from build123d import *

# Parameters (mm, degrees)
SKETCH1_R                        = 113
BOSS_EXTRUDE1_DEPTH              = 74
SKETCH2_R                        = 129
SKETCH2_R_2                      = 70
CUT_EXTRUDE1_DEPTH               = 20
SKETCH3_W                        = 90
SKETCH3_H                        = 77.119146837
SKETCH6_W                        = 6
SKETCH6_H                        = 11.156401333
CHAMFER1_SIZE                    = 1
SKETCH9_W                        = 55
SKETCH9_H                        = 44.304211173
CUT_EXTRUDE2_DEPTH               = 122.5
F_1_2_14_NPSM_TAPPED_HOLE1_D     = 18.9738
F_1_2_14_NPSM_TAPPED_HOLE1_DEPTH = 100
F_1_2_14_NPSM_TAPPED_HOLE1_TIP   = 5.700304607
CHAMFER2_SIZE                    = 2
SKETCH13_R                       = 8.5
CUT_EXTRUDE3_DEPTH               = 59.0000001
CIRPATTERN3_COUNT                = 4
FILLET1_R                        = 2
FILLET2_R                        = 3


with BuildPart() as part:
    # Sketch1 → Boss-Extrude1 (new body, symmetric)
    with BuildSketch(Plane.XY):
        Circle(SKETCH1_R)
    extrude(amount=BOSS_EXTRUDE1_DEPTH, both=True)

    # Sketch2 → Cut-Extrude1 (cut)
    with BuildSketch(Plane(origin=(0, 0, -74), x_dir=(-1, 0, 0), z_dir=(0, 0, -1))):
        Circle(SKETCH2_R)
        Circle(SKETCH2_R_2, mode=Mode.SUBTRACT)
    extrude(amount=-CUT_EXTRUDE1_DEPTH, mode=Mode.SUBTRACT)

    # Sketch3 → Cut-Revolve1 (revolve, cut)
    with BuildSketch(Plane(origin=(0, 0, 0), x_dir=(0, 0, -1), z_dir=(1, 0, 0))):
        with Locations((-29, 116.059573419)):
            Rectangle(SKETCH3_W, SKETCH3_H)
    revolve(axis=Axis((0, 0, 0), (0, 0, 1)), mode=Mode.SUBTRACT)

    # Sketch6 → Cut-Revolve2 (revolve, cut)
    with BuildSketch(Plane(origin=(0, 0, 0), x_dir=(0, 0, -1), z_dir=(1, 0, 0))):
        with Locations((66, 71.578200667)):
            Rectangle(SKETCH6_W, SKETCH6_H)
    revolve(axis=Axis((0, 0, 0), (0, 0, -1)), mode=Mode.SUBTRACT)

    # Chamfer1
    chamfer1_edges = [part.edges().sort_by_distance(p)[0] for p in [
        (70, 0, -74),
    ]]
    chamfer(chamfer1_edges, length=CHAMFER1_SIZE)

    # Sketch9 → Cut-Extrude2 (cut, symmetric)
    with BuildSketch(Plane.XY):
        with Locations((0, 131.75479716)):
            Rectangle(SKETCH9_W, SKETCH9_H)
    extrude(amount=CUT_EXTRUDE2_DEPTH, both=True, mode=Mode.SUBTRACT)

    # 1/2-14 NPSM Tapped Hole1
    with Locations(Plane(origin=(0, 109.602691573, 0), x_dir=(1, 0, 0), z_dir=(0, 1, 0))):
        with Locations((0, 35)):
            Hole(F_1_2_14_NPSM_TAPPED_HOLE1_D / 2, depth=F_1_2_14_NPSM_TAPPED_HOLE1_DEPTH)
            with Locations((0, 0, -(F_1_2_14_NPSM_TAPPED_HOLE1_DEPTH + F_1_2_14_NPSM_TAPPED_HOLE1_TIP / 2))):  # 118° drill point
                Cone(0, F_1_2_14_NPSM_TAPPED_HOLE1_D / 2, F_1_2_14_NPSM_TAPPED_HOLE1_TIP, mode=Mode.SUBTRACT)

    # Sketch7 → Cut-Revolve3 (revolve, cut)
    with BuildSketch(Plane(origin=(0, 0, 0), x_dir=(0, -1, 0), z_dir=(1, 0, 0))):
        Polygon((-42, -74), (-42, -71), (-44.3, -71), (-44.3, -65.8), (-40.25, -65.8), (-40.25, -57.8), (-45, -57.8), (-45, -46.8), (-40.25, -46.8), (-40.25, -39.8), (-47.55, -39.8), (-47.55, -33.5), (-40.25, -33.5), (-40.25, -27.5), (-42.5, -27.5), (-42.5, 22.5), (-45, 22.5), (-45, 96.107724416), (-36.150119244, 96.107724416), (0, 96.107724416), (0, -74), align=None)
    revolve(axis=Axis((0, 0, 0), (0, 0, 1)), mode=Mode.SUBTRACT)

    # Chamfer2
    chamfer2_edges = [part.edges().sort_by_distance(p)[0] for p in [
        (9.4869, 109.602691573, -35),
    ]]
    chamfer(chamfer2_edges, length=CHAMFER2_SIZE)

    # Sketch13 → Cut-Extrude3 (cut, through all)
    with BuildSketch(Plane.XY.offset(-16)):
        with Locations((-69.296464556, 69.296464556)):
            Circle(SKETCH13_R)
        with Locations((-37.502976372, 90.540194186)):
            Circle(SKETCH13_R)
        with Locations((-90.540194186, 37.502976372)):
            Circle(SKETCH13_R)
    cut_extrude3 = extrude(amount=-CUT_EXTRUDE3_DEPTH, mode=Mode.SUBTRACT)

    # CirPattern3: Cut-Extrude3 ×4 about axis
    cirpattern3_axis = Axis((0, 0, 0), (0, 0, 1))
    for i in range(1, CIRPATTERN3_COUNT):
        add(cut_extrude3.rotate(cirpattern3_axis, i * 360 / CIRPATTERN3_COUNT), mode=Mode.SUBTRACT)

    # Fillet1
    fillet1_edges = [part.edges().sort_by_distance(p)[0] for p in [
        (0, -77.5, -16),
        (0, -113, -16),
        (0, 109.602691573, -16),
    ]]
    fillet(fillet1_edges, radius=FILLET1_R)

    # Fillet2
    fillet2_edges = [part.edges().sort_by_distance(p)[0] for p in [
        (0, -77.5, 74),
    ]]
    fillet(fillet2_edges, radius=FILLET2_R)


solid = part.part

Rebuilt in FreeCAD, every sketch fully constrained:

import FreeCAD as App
import Part
import Sketcher


def edges_at(feature, points):
    """Names of the edges that pass closest to the given points."""
    edges = feature.Shape.Edges
    near = lambda p: min(range(len(edges)), key=lambda i: edges[i].distToShape(Part.Vertex(*p))[0])
    return sorted({f"Edge{near(p) + 1}" for p in points})

doc = App.newDocument("Part")
body = doc.addObject("PartDesign::Body", "Body")

# Sketch on XY plane
sketch1 = body.newObject("Sketcher::SketchObject", "Sketch")
sketch1.AttachmentSupport = (doc.getObject("XY_Plane"), [""])
sketch1.MapMode = "FlatFace"
sketch1.addGeometry(Part.Circle(App.Vector(0, 0, 0), App.Vector(0, 0, 1), 113), False)
sketch1.addConstraint([
    Sketcher.Constraint("Coincident", 0, 3, -1, 1),
    Sketcher.Constraint("Diameter", 0, 226.0),
])
pad1 = body.newObject("PartDesign::Pad", "Pad")
pad1.Profile = sketch1
pad1.Length = 148
pad1.Midplane = True

# Sketch on XY plane
sketch2 = body.newObject("Sketcher::SketchObject", "Sketch001")
sketch2.AttachmentSupport = (doc.getObject("XY_Plane"), [""])
sketch2.MapMode = "FlatFace"
sketch2.AttachmentOffset = App.Placement(App.Vector(0, 0, -74), App.Rotation())
sketch2.addGeometry([
    Part.Circle(App.Vector(0, 0, 0), App.Vector(0, 0, 1), 129),
    Part.Circle(App.Vector(0, 0, 0), App.Vector(0, 0, 1), 70),
], False)
sketch2.addConstraint([
    Sketcher.Constraint("Coincident", 0, 3, -1, 1),
    Sketcher.Constraint("Coincident", 1, 3, -1, 1),
    Sketcher.Constraint("Diameter", 0, 258.0),
    Sketcher.Constraint("Diameter", 1, 140.0),
])
pocket1 = body.newObject("PartDesign::Pocket", "Pocket")
pocket1.Profile = sketch2
pocket1.Length = 20
pocket1.Reversed = True

# Sketch on YZ plane
sketch3 = body.newObject("Sketcher::SketchObject", "Sketch002")
sketch3.AttachmentSupport = (doc.getObject("YZ_Plane"), [""])
sketch3.MapMode = "FlatFace"
sketch3.addGeometry([
    Part.LineSegment(App.Vector(154.619147, 74, 0), App.Vector(77.5, 74, 0)),
    Part.LineSegment(App.Vector(77.5, 74, 0), App.Vector(77.5, -16, 0)),
    Part.LineSegment(App.Vector(77.5, -16, 0), App.Vector(154.619147, -16, 0)),
    Part.LineSegment(App.Vector(154.619147, -16, 0), App.Vector(154.619147, 74, 0)),
], False)
sketch3.addConstraint([
    Sketcher.Constraint("Coincident", 0, 2, 1, 1),
    Sketcher.Constraint("Coincident", 1, 2, 2, 1),
    Sketcher.Constraint("Coincident", 2, 2, 3, 1),
    Sketcher.Constraint("Coincident", 3, 2, 0, 1),
    Sketcher.Constraint("Horizontal", 0),
    Sketcher.Constraint("Vertical", 1),
    Sketcher.Constraint("Horizontal", 2),
    Sketcher.Constraint("Vertical", 3),
    Sketcher.Constraint("DistanceY", 1, 2, 1, 1, 90.0),
    Sketcher.Constraint("DistanceY", -1, 1, 0, 2, 74.0),
    Sketcher.Constraint("DistanceX", -1, 1, 0, 2, 77.5),
    Sketcher.Constraint("DistanceX", 0, 2, 0, 1, 77.119147),
])
groove = body.newObject("PartDesign::Groove", "Groove")
groove.Profile = sketch3
groove.ReferenceAxis = (sketch3, ["V_Axis"])
groove.Angle = 360

# Sketch on YZ plane
sketch4 = body.newObject("Sketcher::SketchObject", "Sketch003")
sketch4.AttachmentSupport = (doc.getObject("YZ_Plane"), [""])
sketch4.MapMode = "FlatFace"
sketch4.addGeometry([
    Part.LineSegment(App.Vector(77.156401, -63, 0), App.Vector(66, -63, 0)),
    Part.LineSegment(App.Vector(66, -63, 0), App.Vector(66, -69, 0)),
    Part.LineSegment(App.Vector(66, -69, 0), App.Vector(77.156401, -69, 0)),
    Part.LineSegment(App.Vector(77.156401, -69, 0), App.Vector(77.156401, -63, 0)),
], False)
sketch4.addConstraint([
    Sketcher.Constraint("Coincident", 0, 2, 1, 1),
    Sketcher.Constraint("Coincident", 1, 2, 2, 1),
    Sketcher.Constraint("Coincident", 2, 2, 3, 1),
    Sketcher.Constraint("Coincident", 3, 2, 0, 1),
    Sketcher.Constraint("Horizontal", 0),
    Sketcher.Constraint("Vertical", 1),
    Sketcher.Constraint("Horizontal", 2),
    Sketcher.Constraint("Vertical", 3),
    Sketcher.Constraint("DistanceY", 1, 2, 1, 1, 6.0),
    Sketcher.Constraint("DistanceX", -1, 1, 0, 2, 66.0),
    Sketcher.Constraint("DistanceY", 0, 2, -1, 1, 63.0),
    Sketcher.Constraint("DistanceX", 0, 2, 0, 1, 11.156401),
])
groove2 = body.newObject("PartDesign::Groove", "Groove001")
groove2.Profile = sketch4
groove2.ReferenceAxis = (sketch4, ["V_Axis"])
groove2.Angle = 360
doc.recompute()

chamfer = body.newObject("PartDesign::Chamfer", "Chamfer")
chamfer.Base = (groove2, edges_at(groove2, [(70, 0, -74)]))
chamfer.Size = 1

# Sketch on XY plane
sketch5 = body.newObject("Sketcher::SketchObject", "Sketch004")
sketch5.AttachmentSupport = (doc.getObject("XY_Plane"), [""])
sketch5.MapMode = "FlatFace"
sketch5.addGeometry([
    Part.LineSegment(App.Vector(-27.5, 153.906903, 0), App.Vector(-27.5, 109.602692, 0)),
    Part.LineSegment(App.Vector(-27.5, 109.602692, 0), App.Vector(27.5, 109.602692, 0)),
    Part.LineSegment(App.Vector(27.5, 109.602692, 0), App.Vector(27.5, 153.906903, 0)),
    Part.LineSegment(App.Vector(27.5, 153.906903, 0), App.Vector(-27.5, 153.906903, 0)),
], False)
sketch5.addConstraint([
    Sketcher.Constraint("Coincident", 0, 2, 1, 1),
    Sketcher.Constraint("Coincident", 1, 2, 2, 1),
    Sketcher.Constraint("Coincident", 2, 2, 3, 1),
    Sketcher.Constraint("Coincident", 3, 2, 0, 1),
    Sketcher.Constraint("Vertical", 0),
    Sketcher.Constraint("Horizontal", 1),
    Sketcher.Constraint("Vertical", 2),
    Sketcher.Constraint("Horizontal", 3),
    Sketcher.Constraint("DistanceX", 1, 1, 1, 2, 55.0),
    Sketcher.Constraint("DistanceX", 0, 2, -1, 1, 27.5),
    Sketcher.Constraint("DistanceY", 0, 2, 0, 1, 44.304211),
    Sketcher.Constraint("DistanceY", -1, 1, 0, 2, 109.602692),
])
pocket2 = body.newObject("PartDesign::Pocket", "Pocket001")
pocket2.Profile = sketch5
pocket2.Length = 245
pocket2.Midplane = True

# Sketch on XZ plane
sketch6 = body.newObject("Sketcher::SketchObject", "Sketch005")
sketch6.AttachmentSupport = (doc.getObject("XZ_Plane"), [""])
sketch6.MapMode = "FlatFace"
sketch6.AttachmentOffset = App.Placement(App.Vector(0, 0, -109.602692), App.Rotation())
sketch6.addGeometry(Part.Circle(App.Vector(0, -35, 0), App.Vector(0, 0, 1), 9.4869), False)
sketch6.addConstraint([
    Sketcher.Constraint("PointOnObject", 0, 3, -2),
    Sketcher.Constraint("DistanceY", 0, 3, -1, 1, 35.0),
    Sketcher.Constraint("Diameter", 0, 18.9738),
])
doc.recompute()
hole = body.newObject("PartDesign::Hole", "Hole")
hole.Profile = sketch6
hole.ThreadType = "None"
hole.Diameter = 18.9738
hole.DepthType = "Dimension"
hole.Depth = 100
hole.DrillPoint = "Angled"
hole.DrillPointAngle = 118
hole.Reversed = True

# Sketch on YZ plane
sketch7 = body.newObject("Sketcher::SketchObject", "Sketch006")
sketch7.AttachmentSupport = (doc.getObject("YZ_Plane"), [""])
sketch7.MapMode = "FlatFace"
sketch7.addGeometry([
    Part.LineSegment(App.Vector(42, 71, 0), App.Vector(42, 74, 0)),  # 0
    Part.LineSegment(App.Vector(42, 74, 0), App.Vector(0, 74, 0)),  # 1
    Part.LineSegment(App.Vector(0, 74, 0), App.Vector(0, -96.107724, 0)),  # 2
    Part.LineSegment(App.Vector(0, -96.107724, 0), App.Vector(45, -96.107724, 0)),  # 3
    Part.LineSegment(App.Vector(45, -96.107724, 0), App.Vector(45, -22.5, 0)),  # 4
    Part.LineSegment(App.Vector(45, -22.5, 0), App.Vector(42.5, -22.5, 0)),  # 5
    Part.LineSegment(App.Vector(42.5, -22.5, 0), App.Vector(42.5, 27.5, 0)),  # 6
    Part.LineSegment(App.Vector(42.5, 27.5, 0), App.Vector(40.25, 27.5, 0)),  # 7
    Part.LineSegment(App.Vector(40.25, 27.5, 0), App.Vector(40.25, 33.5, 0)),  # 8
    Part.LineSegment(App.Vector(40.25, 33.5, 0), App.Vector(47.55, 33.5, 0)),  # 9
    Part.LineSegment(App.Vector(47.55, 33.5, 0), App.Vector(47.55, 39.8, 0)),  # 10
    Part.LineSegment(App.Vector(47.55, 39.8, 0), App.Vector(40.25, 39.8, 0)),  # 11
    Part.LineSegment(App.Vector(40.25, 39.8, 0), App.Vector(40.25, 46.8, 0)),  # 12
    Part.LineSegment(App.Vector(40.25, 46.8, 0), App.Vector(45, 46.8, 0)),  # 13
    Part.LineSegment(App.Vector(45, 46.8, 0), App.Vector(45, 57.8, 0)),  # 14
    Part.LineSegment(App.Vector(45, 57.8, 0), App.Vector(40.25, 57.8, 0)),  # 15
    Part.LineSegment(App.Vector(40.25, 57.8, 0), App.Vector(40.25, 65.8, 0)),  # 16
    Part.LineSegment(App.Vector(40.25, 65.8, 0), App.Vector(44.3, 65.8, 0)),  # 17
    Part.LineSegment(App.Vector(44.3, 65.8, 0), App.Vector(44.3, 71, 0)),  # 18
    Part.LineSegment(App.Vector(44.3, 71, 0), App.Vector(42, 71, 0)),  # 19
], False)
sketch7.addConstraint([
    Sketcher.Constraint("Coincident", 0, 2, 1, 1),
    Sketcher.Constraint("Coincident", 1, 2, 2, 1),
    Sketcher.Constraint("Coincident", 2, 2, 3, 1),
    Sketcher.Constraint("Coincident", 3, 2, 4, 1),
    Sketcher.Constraint("Coincident", 4, 2, 5, 1),
    Sketcher.Constraint("Coincident", 5, 2, 6, 1),
    Sketcher.Constraint("Coincident", 6, 2, 7, 1),
    Sketcher.Constraint("Coincident", 7, 2, 8, 1),
    Sketcher.Constraint("Coincident", 8, 2, 9, 1),
    Sketcher.Constraint("Coincident", 9, 2, 10, 1),
    Sketcher.Constraint("Coincident", 10, 2, 11, 1),
    Sketcher.Constraint("Coincident", 11, 2, 12, 1),
    Sketcher.Constraint("Coincident", 12, 2, 13, 1),
    Sketcher.Constraint("Coincident", 13, 2, 14, 1),
    Sketcher.Constraint("Coincident", 14, 2, 15, 1),
    Sketcher.Constraint("Coincident", 15, 2, 16, 1),
    Sketcher.Constraint("Coincident", 16, 2, 17, 1),
    Sketcher.Constraint("Coincident", 17, 2, 18, 1),
    Sketcher.Constraint("Coincident", 18, 2, 19, 1),
    Sketcher.Constraint("Coincident", 19, 2, 0, 1),
    Sketcher.Constraint("Vertical", 0),
    Sketcher.Constraint("Horizontal", 1),
    Sketcher.Constraint("Vertical", 2),
    Sketcher.Constraint("Horizontal", 3),
    Sketcher.Constraint("Vertical", 4),
    Sketcher.Constraint("Horizontal", 5),
    Sketcher.Constraint("Vertical", 6),
    Sketcher.Constraint("Horizontal", 7),
    Sketcher.Constraint("Vertical", 8),
    Sketcher.Constraint("Horizontal", 9),
    Sketcher.Constraint("Vertical", 10),
    Sketcher.Constraint("Horizontal", 11),
    Sketcher.Constraint("Vertical", 12),
    Sketcher.Constraint("Horizontal", 13),
    Sketcher.Constraint("Vertical", 14),
    Sketcher.Constraint("Horizontal", 15),
    Sketcher.Constraint("Vertical", 16),
    Sketcher.Constraint("Horizontal", 17),
    Sketcher.Constraint("Vertical", 18),
    Sketcher.Constraint("Horizontal", 19),
    Sketcher.Constraint("PointOnObject", 1, 2, -2),
    Sketcher.Constraint("Vertical", 8, 2, 11, 2),
    Sketcher.Constraint("Vertical", 4, 2, 13, 2),
    Sketcher.Constraint("Vertical", 12, 2, 15, 2),
    Sketcher.Constraint("DistanceX", 1, 2, 1, 1, 42.0),
    Sketcher.Constraint("DistanceX", 3, 1, 3, 2, 45.0),
    Sketcher.Constraint("DistanceY", 0, 1, 0, 2, 3.0),
    Sketcher.Constraint("DistanceY", 6, 1, 6, 2, 50.0),
    Sketcher.Constraint("DistanceY", 8, 1, 8, 2, 6.0),
    Sketcher.Constraint("DistanceY", 12, 1, 12, 2, 7.0),
    Sketcher.Constraint("DistanceY", 14, 1, 14, 2, 11.0),
    Sketcher.Constraint("DistanceY", 16, 1, 16, 2, 8.0),
    Sketcher.Constraint("DistanceX", 5, 2, 5, 1, 2.5),
    Sketcher.Constraint("DistanceX", 9, 1, 9, 2, 7.3),
    Sketcher.Constraint("DistanceX", 19, 2, 19, 1, 2.3),
    Sketcher.Constraint("DistanceY", 10, 1, 10, 2, 6.3),
    Sketcher.Constraint("DistanceY", 18, 1, 18, 2, 5.2),
    Sketcher.Constraint("DistanceY", -1, 1, 0, 2, 74.0),
    Sketcher.Constraint("DistanceX", 7, 2, 7, 1, 2.25),
    Sketcher.Constraint("DistanceY", 2, 2, 2, 1, 170.107724),
])
groove3 = body.newObject("PartDesign::Groove", "Groove002")
groove3.Profile = sketch7
groove3.ReferenceAxis = (sketch7, ["V_Axis"])
groove3.Angle = 360
doc.recompute()

chamfer2 = body.newObject("PartDesign::Chamfer", "Chamfer001")
chamfer2.Base = (groove3, edges_at(groove3, [(9.487, 109.603, -35)]))
chamfer2.Size = 2

# Sketch on XY plane
sketch8 = body.newObject("Sketcher::SketchObject", "Sketch007")
sketch8.AttachmentSupport = (doc.getObject("XY_Plane"), [""])
sketch8.MapMode = "FlatFace"
sketch8.AttachmentOffset = App.Placement(App.Vector(0, 0, -16), App.Rotation())
sketch8.addGeometry([
    Part.Circle(App.Vector(-69.296465, 69.296465, 0), App.Vector(0, 0, 1), 8.5),
    Part.Circle(App.Vector(-37.502976, 90.540194, 0), App.Vector(0, 0, 1), 8.5),
    Part.Circle(App.Vector(-90.540194, 37.502976, 0), App.Vector(0, 0, 1), 8.5),
], False)
sketch8.addConstraint([
    Sketcher.Constraint("Equal", 0, 1),
    Sketcher.Constraint("Equal", 1, 2),
    Sketcher.Constraint("Diameter", 0, 17.0),
    Sketcher.Constraint("DistanceX", 0, 3, 1, 3, 31.793488),
    Sketcher.Constraint("DistanceY", 0, 3, 1, 3, 21.24373),
    Sketcher.Constraint("DistanceX", 2, 3, 0, 3, 21.24373),
    Sketcher.Constraint("DistanceY", 2, 3, 0, 3, 31.793488),
    Sketcher.Constraint("DistanceX", 0, 3, -1, 1, 69.296465),
    Sketcher.Constraint("DistanceY", -1, 1, 0, 3, 69.296465),
])
pocket3 = body.newObject("PartDesign::Pocket", "Pocket002")
pocket3.Profile = sketch8
pocket3.Type = "ThroughAll"
doc.recompute()

polarpattern = body.newObject("PartDesign::PolarPattern", "PolarPattern")
polarpattern.Originals = [pocket3]
polarpattern.Axis = (doc.getObject("Z_Axis"), [""])
polarpattern.Angle = 360
polarpattern.Occurrences = 4
body.Tip = polarpattern
doc.recompute()

fillet = body.newObject("PartDesign::Fillet", "Fillet")
fillet.Base = (polarpattern, edges_at(polarpattern, [(0, -77.5, -16), (0, -113, -16), (0, 109.603, -16)]))
fillet.Radius = 2
doc.recompute()

fillet2 = body.newObject("PartDesign::Fillet", "Fillet001")
fillet2.Base = (fillet, edges_at(fillet, [(0, -77.5, 74)]))
fillet2.Radius = 3

doc.recompute()
